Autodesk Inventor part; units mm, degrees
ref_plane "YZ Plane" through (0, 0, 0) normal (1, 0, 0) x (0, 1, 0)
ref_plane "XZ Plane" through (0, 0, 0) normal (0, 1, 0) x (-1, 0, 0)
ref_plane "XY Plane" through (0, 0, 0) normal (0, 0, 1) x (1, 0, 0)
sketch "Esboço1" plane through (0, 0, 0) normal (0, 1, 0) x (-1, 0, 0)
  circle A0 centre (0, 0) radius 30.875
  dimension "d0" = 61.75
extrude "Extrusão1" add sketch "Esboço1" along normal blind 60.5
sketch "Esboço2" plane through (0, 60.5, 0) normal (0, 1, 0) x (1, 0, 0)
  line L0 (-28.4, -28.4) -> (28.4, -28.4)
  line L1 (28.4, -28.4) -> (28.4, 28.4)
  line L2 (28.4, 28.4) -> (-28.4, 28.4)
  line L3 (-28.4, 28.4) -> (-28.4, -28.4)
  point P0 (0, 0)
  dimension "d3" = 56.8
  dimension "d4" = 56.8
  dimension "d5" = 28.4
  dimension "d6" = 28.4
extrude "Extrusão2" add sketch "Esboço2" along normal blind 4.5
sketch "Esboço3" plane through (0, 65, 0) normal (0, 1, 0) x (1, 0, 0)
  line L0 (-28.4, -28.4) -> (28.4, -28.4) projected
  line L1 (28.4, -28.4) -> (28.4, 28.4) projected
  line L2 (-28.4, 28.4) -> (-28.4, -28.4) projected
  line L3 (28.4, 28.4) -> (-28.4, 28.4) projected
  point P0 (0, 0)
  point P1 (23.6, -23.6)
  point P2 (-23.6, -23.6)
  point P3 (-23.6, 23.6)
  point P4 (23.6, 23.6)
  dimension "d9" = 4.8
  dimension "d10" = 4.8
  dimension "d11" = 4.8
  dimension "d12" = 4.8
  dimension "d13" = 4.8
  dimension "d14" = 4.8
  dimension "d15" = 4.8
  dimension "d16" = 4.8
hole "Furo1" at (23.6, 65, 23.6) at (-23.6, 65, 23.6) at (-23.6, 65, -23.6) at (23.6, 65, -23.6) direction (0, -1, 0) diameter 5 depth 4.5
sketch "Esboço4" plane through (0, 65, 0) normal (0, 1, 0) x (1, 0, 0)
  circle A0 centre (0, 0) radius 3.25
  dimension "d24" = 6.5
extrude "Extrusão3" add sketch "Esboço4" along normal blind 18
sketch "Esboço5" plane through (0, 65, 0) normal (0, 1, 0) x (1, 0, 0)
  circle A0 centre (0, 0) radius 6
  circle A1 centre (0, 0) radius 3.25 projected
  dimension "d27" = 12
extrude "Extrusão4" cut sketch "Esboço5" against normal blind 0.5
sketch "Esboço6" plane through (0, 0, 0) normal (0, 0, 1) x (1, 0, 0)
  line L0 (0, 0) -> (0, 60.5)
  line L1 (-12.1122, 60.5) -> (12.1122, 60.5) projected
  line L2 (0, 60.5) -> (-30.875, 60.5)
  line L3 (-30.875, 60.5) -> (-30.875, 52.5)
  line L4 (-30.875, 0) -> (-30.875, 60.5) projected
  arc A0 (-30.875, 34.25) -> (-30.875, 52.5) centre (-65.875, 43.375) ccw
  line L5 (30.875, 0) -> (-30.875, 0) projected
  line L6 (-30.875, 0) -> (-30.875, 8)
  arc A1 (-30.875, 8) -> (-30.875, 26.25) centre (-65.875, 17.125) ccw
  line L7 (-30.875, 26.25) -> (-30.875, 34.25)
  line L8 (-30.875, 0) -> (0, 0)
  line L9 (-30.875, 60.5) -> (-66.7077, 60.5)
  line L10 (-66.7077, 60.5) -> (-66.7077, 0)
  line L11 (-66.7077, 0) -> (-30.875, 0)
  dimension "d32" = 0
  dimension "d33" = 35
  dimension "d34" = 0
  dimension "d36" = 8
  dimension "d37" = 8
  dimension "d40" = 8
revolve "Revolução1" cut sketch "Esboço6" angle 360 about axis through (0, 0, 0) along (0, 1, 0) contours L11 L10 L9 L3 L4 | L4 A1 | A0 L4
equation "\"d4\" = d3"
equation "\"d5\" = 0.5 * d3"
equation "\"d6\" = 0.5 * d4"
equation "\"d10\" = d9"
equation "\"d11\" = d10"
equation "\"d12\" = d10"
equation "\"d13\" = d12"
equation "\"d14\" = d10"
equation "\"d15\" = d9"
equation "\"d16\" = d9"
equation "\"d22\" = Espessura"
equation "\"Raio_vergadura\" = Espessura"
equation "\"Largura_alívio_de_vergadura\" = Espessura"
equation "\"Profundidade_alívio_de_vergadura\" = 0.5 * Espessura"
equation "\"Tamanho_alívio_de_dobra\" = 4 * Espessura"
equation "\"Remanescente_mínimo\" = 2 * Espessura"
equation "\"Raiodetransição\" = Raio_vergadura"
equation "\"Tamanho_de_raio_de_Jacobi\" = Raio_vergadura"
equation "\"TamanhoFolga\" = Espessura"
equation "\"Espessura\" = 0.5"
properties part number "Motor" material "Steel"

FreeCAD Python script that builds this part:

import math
import FreeCAD as App
import Part
import Sketcher

V = App.Vector

doc = App.newDocument("Part")
body = doc.addObject("PartDesign::Body", "Body")

# Sketch on XZ plane
sketch1 = body.newObject("Sketcher::SketchObject", "Sketch")
sketch1.AttachmentSupport = (doc.getObject("XZ_Plane"), [""])
sketch1.MapMode = "FlatFace"
sketch1.addGeometry(Part.Circle(V(0, 0, 0), V(0, 0, 1), 31), False)
sketch1.addConstraint([
    Sketcher.Constraint("Coincident", 0, 3, -1, 1),
    Sketcher.Constraint("Diameter", 0, 61.75),
])
pad1 = body.newObject("PartDesign::Pad", "Pad")
pad1.Profile = sketch1
pad1.Length = 60.5
pad1.Reversed = True

# Sketch on XZ plane
sketch2 = body.newObject("Sketcher::SketchObject", "Sketch001")
sketch2.AttachmentSupport = (doc.getObject("XZ_Plane"), [""])
sketch2.MapMode = "FlatFace"
sketch2.AttachmentOffset = App.Placement(V(0, 0, -60.5), App.Rotation())
sketch2.addGeometry([
    Part.LineSegment(V(-28, -28, 0), V(-28, 28, 0)),
    Part.LineSegment(V(-28, 28, 0), V(28, 28, 0)),
    Part.LineSegment(V(28, 28, 0), V(28, -28, 0)),
    Part.LineSegment(V(28, -28, 0), V(-28, -28, 0)),
], False)
sketch2.addConstraint([
    Sketcher.Constraint("Coincident", 0, 2, 1, 1),
    Sketcher.Constraint("Coincident", 1, 2, 2, 1),
    Sketcher.Constraint("Coincident", 2, 2, 3, 1),
    Sketcher.Constraint("Coincident", 3, 2, 0, 1),
    Sketcher.Constraint("Vertical", 0),
    Sketcher.Constraint("Horizontal", 1),
    Sketcher.Constraint("Vertical", 2),
    Sketcher.Constraint("Horizontal", 3),
    Sketcher.Constraint("Symmetric", 0, 2, 2, 2, -1, 1),
    Sketcher.Constraint("Equal", 3, 0),
    Sketcher.Constraint("DistanceX", 1, 1, 1, 2, 56.8),
])
pad2 = body.newObject("PartDesign::Pad", "Pad001")
pad2.Profile = sketch2
pad2.Length = 4.5
pad2.Reversed = True

# Sketch on XZ plane
sketch3 = body.newObject("Sketcher::SketchObject", "Sketch002")
sketch3.AttachmentSupport = (doc.getObject("XZ_Plane"), [""])
sketch3.MapMode = "FlatFace"
sketch3.AttachmentOffset = App.Placement(V(0, 0, -65), App.Rotation())
sketch3.addGeometry([
    Part.Circle(V(23.6, 23.6, 0), V(0, 0, 1), 2.5),
    Part.Circle(V(-23.6, 23.6, 0), V(0, 0, 1), 2.5),
    Part.Circle(V(-23.6, -23.6, 0), V(0, 0, 1), 2.5),
    Part.Circle(V(23.6, -23.6, 0), V(0, 0, 1), 2.5),
], False)
sketch3.addConstraint([
    Sketcher.Constraint("Equal", 0, 1),
    Sketcher.Constraint("Equal", 1, 2),
    Sketcher.Constraint("Equal", 2, 3),
    Sketcher.Constraint("Symmetric", 0, 3, 2, 3, -1, 1),
    Sketcher.Constraint("Symmetric", 1, 3, 3, 3, -1, 1),
    Sketcher.Constraint("Symmetric", 0, 3, 1, 3, -2),
    Sketcher.Constraint("Diameter", 0, 5.0),
    Sketcher.Constraint("DistanceX", -1, 1, 0, 3, 23.6),
    Sketcher.Constraint("DistanceY", -1, 1, 0, 3, 23.6),
])
doc.recompute()
hole = body.newObject("PartDesign::Hole", "Hole")
hole.Profile = sketch3
hole.ThreadType = "None"
hole.Diameter = 5
hole.DepthType = "Dimension"
hole.Depth = 4.5
hole.DrillPoint = "Flat"
hole.Reversed = True

# Sketch on XZ plane
sketch4 = body.newObject("Sketcher::SketchObject", "Sketch003")
sketch4.AttachmentSupport = (doc.getObject("XZ_Plane"), [""])
sketch4.MapMode = "FlatFace"
sketch4.AttachmentOffset = App.Placement(V(0, 0, -65), App.Rotation())
sketch4.addGeometry(Part.Circle(V(0, 0, 0), V(0, 0, 1), 3.2), False)
sketch4.addConstraint([
    Sketcher.Constraint("Coincident", 0, 3, -1, 1),
    Sketcher.Constraint("Diameter", 0, 6.5),
])
pad3 = body.newObject("PartDesign::Pad", "Pad002")
pad3.Profile = sketch4
pad3.Length = 18
pad3.Reversed = True

# Sketch on XZ plane
sketch5 = body.newObject("Sketcher::SketchObject", "Sketch004")
sketch5.AttachmentSupport = (doc.getObject("XZ_Plane"), [""])
sketch5.MapMode = "FlatFace"
sketch5.AttachmentOffset = App.Placement(V(0, 0, -65), App.Rotation())
sketch5.addGeometry([
    Part.Circle(V(0, 0, 0), V(0, 0, 1), 6),
    Part.Circle(V(0, 0, 0), V(0, 0, 1), 3.2),
], False)
sketch5.addConstraint([
    Sketcher.Constraint("Coincident", 0, 3, -1, 1),
    Sketcher.Constraint("Coincident", 1, 3, -1, 1),
    Sketcher.Constraint("Diameter", 0, 12.0),
    Sketcher.Constraint("Diameter", 1, 6.5),
])
pocket1 = body.newObject("PartDesign::Pocket", "Pocket")
pocket1.Profile = sketch5
pocket1.Length = 0.5
pocket1.Reversed = True

# Sketch on XY plane
sketch6 = body.newObject("Sketcher::SketchObject", "Sketch005")
sketch6.AttachmentSupport = (doc.getObject("XY_Plane"), [""])
sketch6.MapMode = "FlatFace"
sketch6.addGeometry([
    Part.LineSegment(V(-67, 0, 0), V(-31, 0, 0)),  # 0
    Part.LineSegment(V(-31, 0, 0), V(-31, 8, 0)),  # 1
    Part.ArcOfCircle(Part.Circle(V(-66, 17, 0), V(0, 0, 1), 36), math.radians(-15), math.radians(15)),  # 2
    Part.LineSegment(V(-31, 26, 0), V(-31, 34, 0)),  # 3
    Part.ArcOfCircle(Part.Circle(V(-66, 43, 0), V(0, 0, 1), 36), math.radians(-15), math.radians(15)),  # 4
    Part.LineSegment(V(-31, 52, 0), V(-31, 60, 0)),  # 5
    Part.LineSegment(V(-31, 60, 0), V(-67, 60, 0)),  # 6
    Part.LineSegment(V(-67, 60, 0), V(-67, 0, 0)),  # 7
], False)
sketch6.addConstraint([
    Sketcher.Constraint("Coincident", 0, 2, 1, 1),
    Sketcher.Constraint("Coincident", 1, 2, 2, 1),
    Sketcher.Constraint("Coincident", 2, 2, 3, 1),
    Sketcher.Constraint("Coincident", 3, 2, 4, 1),
    Sketcher.Constraint("Coincident", 4, 2, 5, 1),
    Sketcher.Constraint("Coincident", 5, 2, 6, 1),
    Sketcher.Constraint("Coincident", 6, 2, 7, 1),
    Sketcher.Constraint("Coincident", 7, 2, 0, 1),
    Sketcher.Constraint("Horizontal", 0),
    Sketcher.Constraint("Vertical", 1),
    Sketcher.Constraint("Vertical", 3),
    Sketcher.Constraint("Vertical", 5),
    Sketcher.Constraint("Horizontal", 6),
    Sketcher.Constraint("Vertical", 7),
    Sketcher.Constraint("Equal", 2, 4),
    Sketcher.Constraint("PointOnObject", 0, 2, -1),
    Sketcher.Constraint("Vertical", 2, 3, 4, 3),
    Sketcher.Constraint("Vertical", 1, 2, 2, 2),
    Sketcher.Constraint("Vertical", 3, 2, 4, 2),
    Sketcher.Constraint("Equal", 1, 3),
    Sketcher.Constraint("Equal", 3, 5),
    Sketcher.Constraint("DistanceY", 1, 1, 1, 2, 8.0),
    Sketcher.Constraint("DistanceX", 2, 3, 0, 2, 35.0),
    Sketcher.Constraint("Radius", 2, 36.17),
    Sketcher.Constraint("DistanceX", 0, 1, 0, 2, 35.8327),
    Sketcher.Constraint("DistanceX", 2, 3, -1, 1, 65.875),
])
groove = body.newObject("PartDesign::Groove", "Groove")
groove.Profile = sketch6
groove.ReferenceAxis = (sketch6, ["V_Axis"])
groove.Angle = 360

doc.recompute()
